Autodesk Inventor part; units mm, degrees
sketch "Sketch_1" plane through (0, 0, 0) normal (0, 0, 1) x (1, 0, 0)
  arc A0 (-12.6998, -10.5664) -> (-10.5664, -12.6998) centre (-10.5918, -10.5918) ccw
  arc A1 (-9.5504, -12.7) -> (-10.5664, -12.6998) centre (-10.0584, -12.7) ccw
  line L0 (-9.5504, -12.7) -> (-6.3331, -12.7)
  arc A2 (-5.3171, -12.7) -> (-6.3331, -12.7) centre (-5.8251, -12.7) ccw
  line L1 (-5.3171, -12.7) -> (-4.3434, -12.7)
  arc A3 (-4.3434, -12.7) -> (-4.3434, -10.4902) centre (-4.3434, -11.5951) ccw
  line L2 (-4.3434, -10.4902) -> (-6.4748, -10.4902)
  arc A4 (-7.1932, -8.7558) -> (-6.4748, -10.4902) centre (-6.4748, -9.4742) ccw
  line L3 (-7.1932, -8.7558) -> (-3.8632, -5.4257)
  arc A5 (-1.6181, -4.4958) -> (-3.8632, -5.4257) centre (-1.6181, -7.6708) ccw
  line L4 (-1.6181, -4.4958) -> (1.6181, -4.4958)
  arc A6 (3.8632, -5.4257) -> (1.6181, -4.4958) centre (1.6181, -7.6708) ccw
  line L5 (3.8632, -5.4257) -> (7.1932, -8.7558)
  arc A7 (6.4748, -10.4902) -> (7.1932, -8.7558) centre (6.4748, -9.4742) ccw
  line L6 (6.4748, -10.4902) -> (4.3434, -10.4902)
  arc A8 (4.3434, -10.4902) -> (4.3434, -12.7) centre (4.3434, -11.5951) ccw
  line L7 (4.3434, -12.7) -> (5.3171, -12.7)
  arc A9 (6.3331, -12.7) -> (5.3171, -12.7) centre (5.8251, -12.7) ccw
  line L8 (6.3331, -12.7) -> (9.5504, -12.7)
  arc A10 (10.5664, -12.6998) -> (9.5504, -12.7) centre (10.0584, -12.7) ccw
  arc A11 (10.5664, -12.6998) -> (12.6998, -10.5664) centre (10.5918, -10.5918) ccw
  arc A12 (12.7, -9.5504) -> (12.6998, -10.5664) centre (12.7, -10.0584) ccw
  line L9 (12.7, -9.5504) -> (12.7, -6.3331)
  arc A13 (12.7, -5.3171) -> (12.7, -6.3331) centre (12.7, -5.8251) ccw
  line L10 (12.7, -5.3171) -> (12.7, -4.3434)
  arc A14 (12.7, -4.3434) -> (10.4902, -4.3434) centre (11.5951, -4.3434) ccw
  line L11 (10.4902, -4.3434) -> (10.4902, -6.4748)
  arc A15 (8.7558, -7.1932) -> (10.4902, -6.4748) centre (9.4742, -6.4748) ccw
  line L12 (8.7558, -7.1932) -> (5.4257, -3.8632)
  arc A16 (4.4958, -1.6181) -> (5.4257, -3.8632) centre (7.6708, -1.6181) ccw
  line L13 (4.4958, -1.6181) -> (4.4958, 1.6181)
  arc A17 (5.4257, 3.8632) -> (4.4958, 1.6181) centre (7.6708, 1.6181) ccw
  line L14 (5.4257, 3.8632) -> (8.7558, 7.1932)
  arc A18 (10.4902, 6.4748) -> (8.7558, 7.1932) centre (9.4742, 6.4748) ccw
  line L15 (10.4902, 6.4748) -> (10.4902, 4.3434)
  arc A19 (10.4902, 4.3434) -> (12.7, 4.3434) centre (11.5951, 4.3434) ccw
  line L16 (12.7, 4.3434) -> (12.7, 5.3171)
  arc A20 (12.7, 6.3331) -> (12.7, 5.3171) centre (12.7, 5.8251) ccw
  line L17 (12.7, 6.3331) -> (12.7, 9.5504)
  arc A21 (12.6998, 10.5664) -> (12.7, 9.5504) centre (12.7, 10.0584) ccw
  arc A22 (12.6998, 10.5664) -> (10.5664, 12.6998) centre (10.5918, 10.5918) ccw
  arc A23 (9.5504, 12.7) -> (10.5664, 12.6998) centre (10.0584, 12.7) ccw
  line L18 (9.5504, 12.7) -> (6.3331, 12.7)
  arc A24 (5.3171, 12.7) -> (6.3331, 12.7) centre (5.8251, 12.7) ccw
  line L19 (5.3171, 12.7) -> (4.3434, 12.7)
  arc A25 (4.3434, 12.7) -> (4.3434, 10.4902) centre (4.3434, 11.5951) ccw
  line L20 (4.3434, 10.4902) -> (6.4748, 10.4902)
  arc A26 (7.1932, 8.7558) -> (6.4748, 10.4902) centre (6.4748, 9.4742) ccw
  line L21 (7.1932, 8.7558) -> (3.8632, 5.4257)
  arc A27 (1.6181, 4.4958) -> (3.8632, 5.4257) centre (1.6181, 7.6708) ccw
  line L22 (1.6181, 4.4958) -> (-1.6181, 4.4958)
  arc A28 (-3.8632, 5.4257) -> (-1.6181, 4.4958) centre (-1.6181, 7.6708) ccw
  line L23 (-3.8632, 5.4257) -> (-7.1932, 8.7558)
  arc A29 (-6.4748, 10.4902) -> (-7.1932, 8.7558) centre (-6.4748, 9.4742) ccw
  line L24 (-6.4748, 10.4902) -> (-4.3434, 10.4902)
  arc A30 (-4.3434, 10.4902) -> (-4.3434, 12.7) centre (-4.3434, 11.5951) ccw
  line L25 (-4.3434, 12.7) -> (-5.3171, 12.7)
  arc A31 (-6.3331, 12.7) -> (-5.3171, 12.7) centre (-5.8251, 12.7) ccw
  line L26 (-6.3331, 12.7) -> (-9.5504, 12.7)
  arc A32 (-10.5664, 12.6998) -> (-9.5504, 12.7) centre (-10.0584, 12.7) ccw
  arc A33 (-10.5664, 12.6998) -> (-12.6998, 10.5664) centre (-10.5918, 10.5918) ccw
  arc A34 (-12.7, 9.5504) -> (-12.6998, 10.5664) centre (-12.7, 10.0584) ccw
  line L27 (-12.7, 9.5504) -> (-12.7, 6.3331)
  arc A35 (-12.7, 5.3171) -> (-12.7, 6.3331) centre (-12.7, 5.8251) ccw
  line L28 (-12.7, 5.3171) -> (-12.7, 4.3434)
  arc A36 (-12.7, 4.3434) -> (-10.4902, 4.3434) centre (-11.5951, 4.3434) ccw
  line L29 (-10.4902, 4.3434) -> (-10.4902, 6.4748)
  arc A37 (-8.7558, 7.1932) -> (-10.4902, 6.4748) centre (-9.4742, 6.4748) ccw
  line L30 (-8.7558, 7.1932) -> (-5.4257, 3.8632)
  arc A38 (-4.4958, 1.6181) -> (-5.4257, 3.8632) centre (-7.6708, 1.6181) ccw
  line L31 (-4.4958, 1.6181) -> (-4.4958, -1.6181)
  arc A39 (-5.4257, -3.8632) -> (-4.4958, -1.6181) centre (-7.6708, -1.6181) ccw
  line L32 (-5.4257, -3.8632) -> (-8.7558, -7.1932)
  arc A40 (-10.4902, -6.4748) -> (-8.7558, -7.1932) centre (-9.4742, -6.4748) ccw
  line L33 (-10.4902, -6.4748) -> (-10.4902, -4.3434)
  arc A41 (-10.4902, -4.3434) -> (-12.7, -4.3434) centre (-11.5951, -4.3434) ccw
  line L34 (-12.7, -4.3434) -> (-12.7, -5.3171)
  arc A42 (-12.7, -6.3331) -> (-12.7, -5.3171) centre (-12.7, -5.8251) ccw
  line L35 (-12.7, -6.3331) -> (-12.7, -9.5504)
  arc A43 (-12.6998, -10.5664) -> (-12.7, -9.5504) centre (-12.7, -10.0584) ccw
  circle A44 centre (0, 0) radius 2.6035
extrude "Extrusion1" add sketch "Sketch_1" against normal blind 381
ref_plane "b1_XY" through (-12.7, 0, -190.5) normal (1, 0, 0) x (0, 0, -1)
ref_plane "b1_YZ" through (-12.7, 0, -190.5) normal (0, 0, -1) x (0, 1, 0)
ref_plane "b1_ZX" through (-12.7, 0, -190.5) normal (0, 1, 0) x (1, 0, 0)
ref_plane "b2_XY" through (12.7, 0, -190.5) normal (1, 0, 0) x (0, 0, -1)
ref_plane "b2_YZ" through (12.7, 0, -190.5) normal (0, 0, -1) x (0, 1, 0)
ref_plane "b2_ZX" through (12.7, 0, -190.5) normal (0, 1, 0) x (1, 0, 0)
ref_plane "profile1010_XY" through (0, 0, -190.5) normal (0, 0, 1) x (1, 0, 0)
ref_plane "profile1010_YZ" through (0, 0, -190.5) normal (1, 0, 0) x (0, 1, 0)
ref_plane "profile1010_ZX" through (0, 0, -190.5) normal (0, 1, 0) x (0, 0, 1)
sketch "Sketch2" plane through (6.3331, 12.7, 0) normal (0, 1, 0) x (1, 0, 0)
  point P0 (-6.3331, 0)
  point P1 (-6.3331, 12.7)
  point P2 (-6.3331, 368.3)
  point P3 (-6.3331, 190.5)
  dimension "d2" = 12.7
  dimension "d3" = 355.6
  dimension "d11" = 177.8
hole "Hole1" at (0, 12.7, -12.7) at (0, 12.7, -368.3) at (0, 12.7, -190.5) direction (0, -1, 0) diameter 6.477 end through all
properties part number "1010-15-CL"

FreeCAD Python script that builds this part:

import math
import FreeCAD as App
import Part
import Sketcher
from FreeCAD import Vector
Q = App.Units.Quantity

doc = App.newDocument("Part")
body = doc.addObject("PartDesign::Body", "Body")

# Sketch on XY plane
sketch1 = body.newObject("Sketcher::SketchObject", "Sketch")
sketch1.AttachmentSupport = (doc.getObject("XY_Plane"), [""])
sketch1.MapMode = "FlatFace"
sketch1.addGeometry([
    Part.ArcOfCircle(Part.Circle(Vector(-12.7, -10.1, 0), Vector(0, 0, 1), 0.5), math.radians(-90), math.radians(90)),  # 0
    Part.ArcOfCircle(Part.Circle(Vector(-10.6, -10.6, 0), Vector(0, 0, 1), 2.1), math.radians(179), math.radians(271)),  # 1
    Part.ArcOfCircle(Part.Circle(Vector(-10.1, -12.7, 0), Vector(0, 0, 1), 0.5), math.radians(0), math.radians(180)),  # 2
    Part.LineSegment(Vector(-9.6, -12.7, 0), Vector(-6.3, -12.7, 0)),  # 3
    Part.ArcOfCircle(Part.Circle(Vector(-5.8, -12.7, 0), Vector(0, 0, 1), 0.5), math.radians(0), math.radians(180)),  # 4
    Part.LineSegment(Vector(-5.3, -12.7, 0), Vector(-4.3, -12.7, 0)),  # 5
    Part.ArcOfCircle(Part.Circle(Vector(-4.3, -11.6, 0), Vector(0, 0, 1), 1.1), math.radians(-90), math.radians(90)),  # 6
    Part.LineSegment(Vector(-4.3, -10.5, 0), Vector(-6.5, -10.5, 0)),  # 7
    Part.ArcOfCircle(Part.Circle(Vector(-6.5, -9.5, 0), Vector(0, 0, 1), 1), math.radians(135), math.radians(270)),  # 8
    Part.LineSegment(Vector(-7.2, -8.8, 0), Vector(-3.9, -5.4, 0)),  # 9
    Part.ArcOfCircle(Part.Circle(Vector(-1.6, -7.7, 0), Vector(0, 0, 1), 3.2), math.radians(90), math.radians(135)),  # 10
    Part.LineSegment(Vector(-1.6, -4.5, 0), Vector(1.6, -4.5, 0)),  # 11
    Part.ArcOfCircle(Part.Circle(Vector(1.6, -7.7, 0), Vector(0, 0, 1), 3.2), math.radians(45), math.radians(90)),  # 12
    Part.LineSegment(Vector(3.9, -5.4, 0), Vector(7.2, -8.8, 0)),  # 13
    Part.ArcOfCircle(Part.Circle(Vector(6.5, -9.5, 0), Vector(0, 0, 1), 1), math.radians(-90), math.radians(45)),  # 14
    Part.LineSegment(Vector(6.5, -10.5, 0), Vector(4.3, -10.5, 0)),  # 15
    Part.ArcOfCircle(Part.Circle(Vector(4.3, -11.6, 0), Vector(0, 0, 1), 1.1), math.radians(90), math.radians(270)),  # 16
    Part.LineSegment(Vector(4.3, -12.7, 0), Vector(5.3, -12.7, 0)),  # 17
    Part.ArcOfCircle(Part.Circle(Vector(5.8, -12.7, 0), Vector(0, 0, 1), 0.5), math.radians(0), math.radians(180)),  # 18
    Part.LineSegment(Vector(6.3, -12.7, 0), Vector(9.6, -12.7, 0)),  # 19
    Part.ArcOfCircle(Part.Circle(Vector(10.1, -12.7, 0), Vector(0, 0, 1), 0.5), math.radians(0), math.radians(180)),  # 20
    Part.ArcOfCircle(Part.Circle(Vector(10.6, -10.6, 0), Vector(0, 0, 1), 2.1), math.radians(-91), math.radians(1)),  # 21
    Part.ArcOfCircle(Part.Circle(Vector(12.7, -10.1, 0), Vector(0, 0, 1), 0.5), math.radians(90), math.radians(270)),  # 22
    Part.LineSegment(Vector(12.7, -9.6, 0), Vector(12.7, -6.3, 0)),  # 23
    Part.ArcOfCircle(Part.Circle(Vector(12.7, -5.8, 0), Vector(0, 0, 1), 0.5), math.radians(90), math.radians(270)),  # 24
    Part.LineSegment(Vector(12.7, -5.3, 0), Vector(12.7, -4.3, 0)),  # 25
    Part.ArcOfCircle(Part.Circle(Vector(11.6, -4.3, 0), Vector(0, 0, 1), 1.1), math.radians(0), math.radians(180)),  # 26
    Part.LineSegment(Vector(10.5, -4.3, 0), Vector(10.5, -6.5, 0)),  # 27
    Part.ArcOfCircle(Part.Circle(Vector(9.5, -6.5, 0), Vector(0, 0, 1), 1), math.radians(-135), math.radians(0)),  # 28
    Part.LineSegment(Vector(8.8, -7.2, 0), Vector(5.4, -3.9, 0)),  # 29
    Part.ArcOfCircle(Part.Circle(Vector(7.7, -1.6, 0), Vector(0, 0, 1), 3.2), math.radians(180), math.radians(225)),  # 30
    Part.LineSegment(Vector(4.5, -1.6, 0), Vector(4.5, 1.6, 0)),  # 31
    Part.ArcOfCircle(Part.Circle(Vector(7.7, 1.6, 0), Vector(0, 0, 1), 3.2), math.radians(135), math.radians(180)),  # 32
    Part.LineSegment(Vector(5.4, 3.9, 0), Vector(8.8, 7.2, 0)),  # 33
    Part.ArcOfCircle(Part.Circle(Vector(9.5, 6.5, 0), Vector(0, 0, 1), 1), math.radians(0), math.radians(135)),  # 34
    Part.LineSegment(Vector(10.5, 6.5, 0), Vector(10.5, 4.3, 0)),  # 35
    Part.ArcOfCircle(Part.Circle(Vector(11.6, 4.3, 0), Vector(0, 0, 1), 1.1), math.radians(180), math.radians(360)),  # 36
    Part.LineSegment(Vector(12.7, 4.3, 0), Vector(12.7, 5.3, 0)),  # 37
    Part.ArcOfCircle(Part.Circle(Vector(12.7, 5.8, 0), Vector(0, 0, 1), 0.5), math.radians(90), math.radians(270)),  # 38
    Part.LineSegment(Vector(12.7, 6.3, 0), Vector(12.7, 9.6, 0)),  # 39
    Part.ArcOfCircle(Part.Circle(Vector(12.7, 10.1, 0), Vector(0, 0, 1), 0.5), math.radians(90), math.radians(270)),  # 40
    Part.ArcOfCircle(Part.Circle(Vector(10.6, 10.6, 0), Vector(0, 0, 1), 2.1), math.radians(-1), math.radians(91)),  # 41
    Part.ArcOfCircle(Part.Circle(Vector(10.1, 12.7, 0), Vector(0, 0, 1), 0.5), math.radians(180), math.radians(360)),  # 42
    Part.LineSegment(Vector(9.6, 12.7, 0), Vector(6.3, 12.7, 0)),  # 43
    Part.ArcOfCircle(Part.Circle(Vector(5.8, 12.7, 0), Vector(0, 0, 1), 0.5), math.radians(180), math.radians(360)),  # 44
    Part.LineSegment(Vector(5.3, 12.7, 0), Vector(4.3, 12.7, 0)),  # 45
    Part.ArcOfCircle(Part.Circle(Vector(4.3, 11.6, 0), Vector(0, 0, 1), 1.1), math.radians(90), math.radians(270)),  # 46
    Part.LineSegment(Vector(4.3, 10.5, 0), Vector(6.5, 10.5, 0)),  # 47
    Part.ArcOfCircle(Part.Circle(Vector(6.5, 9.5, 0), Vector(0, 0, 1), 1), math.radians(-45), math.radians(90)),  # 48
    Part.LineSegment(Vector(7.2, 8.8, 0), Vector(3.9, 5.4, 0)),  # 49
    Part.ArcOfCircle(Part.Circle(Vector(1.6, 7.7, 0), Vector(0, 0, 1), 3.2), math.radians(-90), math.radians(-45)),  # 50
    Part.LineSegment(Vector(1.6, 4.5, 0), Vector(-1.6, 4.5, 0)),  # 51
    Part.ArcOfCircle(Part.Circle(Vector(-1.6, 7.7, 0), Vector(0, 0, 1), 3.2), math.radians(-135), math.radians(-90)),  # 52
    Part.LineSegment(Vector(-3.9, 5.4, 0), Vector(-7.2, 8.8, 0)),  # 53
    Part.ArcOfCircle(Part.Circle(Vector(-6.5, 9.5, 0), Vector(0, 0, 1), 1), math.radians(90), math.radians(225)),  # 54
    Part.LineSegment(Vector(-6.5, 10.5, 0), Vector(-4.3, 10.5, 0)),  # 55
    Part.ArcOfCircle(Part.Circle(Vector(-4.3, 11.6, 0), Vector(0, 0, 1), 1.1), math.radians(-90), math.radians(90)),  # 56
    Part.LineSegment(Vector(-4.3, 12.7, 0), Vector(-5.3, 12.7, 0)),  # 57
    Part.ArcOfCircle(Part.Circle(Vector(-5.8, 12.7, 0), Vector(0, 0, 1), 0.5), math.radians(180), math.radians(360)),  # 58
    Part.LineSegment(Vector(-6.3, 12.7, 0), Vector(-9.6, 12.7, 0)),  # 59
    Part.ArcOfCircle(Part.Circle(Vector(-10.1, 12.7, 0), Vector(0, 0, 1), 0.5), math.radians(-180), math.radians(0)),  # 60
    Part.ArcOfCircle(Part.Circle(Vector(-10.6, 10.6, 0), Vector(0, 0, 1), 2.1), math.radians(89), math.radians(181)),  # 61
    Part.ArcOfCircle(Part.Circle(Vector(-12.7, 10.1, 0), Vector(0, 0, 1), 0.5), math.radians(-90), math.radians(90)),  # 62
    Part.LineSegment(Vector(-12.7, 9.6, 0), Vector(-12.7, 6.3, 0)),  # 63
    Part.ArcOfCircle(Part.Circle(Vector(-12.7, 5.8, 0), Vector(0, 0, 1), 0.5), math.radians(-90), math.radians(90)),  # 64
    Part.LineSegment(Vector(-12.7, 5.3, 0), Vector(-12.7, 4.3, 0)),  # 65
    Part.ArcOfCircle(Part.Circle(Vector(-11.6, 4.3, 0), Vector(0, 0, 1), 1.1), math.radians(180), math.radians(360)),  # 66
    Part.LineSegment(Vector(-10.5, 4.3, 0), Vector(-10.5, 6.5, 0)),  # 67
    Part.ArcOfCircle(Part.Circle(Vector(-9.5, 6.5, 0), Vector(0, 0, 1), 1), math.radians(45), math.radians(180)),  # 68
    Part.LineSegment(Vector(-8.8, 7.2, 0), Vector(-5.4, 3.9, 0)),  # 69
    Part.ArcOfCircle(Part.Circle(Vector(-7.7, 1.6, 0), Vector(0, 0, 1), 3.2), math.radians(0), math.radians(45)),  # 70
    Part.LineSegment(Vector(-4.5, 1.6, 0), Vector(-4.5, -1.6, 0)),  # 71
    Part.ArcOfCircle(Part.Circle(Vector(-7.7, -1.6, 0), Vector(0, 0, 1), 3.2), math.radians(-45), math.radians(0)),  # 72
    Part.LineSegment(Vector(-5.4, -3.9, 0), Vector(-8.8, -7.2, 0)),  # 73
    Part.ArcOfCircle(Part.Circle(Vector(-9.5, -6.5, 0), Vector(0, 0, 1), 1), math.radians(180), math.radians(315)),  # 74
    Part.LineSegment(Vector(-10.5, -6.5, 0), Vector(-10.5, -4.3, 0)),  # 75
    Part.ArcOfCircle(Part.Circle(Vector(-11.6, -4.3, 0), Vector(0, 0, 1), 1.1), math.radians(0), math.radians(180)),  # 76
    Part.LineSegment(Vector(-12.7, -4.3, 0), Vector(-12.7, -5.3, 0)),  # 77
    Part.ArcOfCircle(Part.Circle(Vector(-12.7, -5.8, 0), Vector(0, 0, 1), 0.5), math.radians(-90), math.radians(90)),  # 78
    Part.LineSegment(Vector(-12.7, -6.3, 0), Vector(-12.7, -9.6, 0)),  # 79
    Part.Circle(Vector(0, 0, 0), Vector(0, 0, 1), 2.6),  # 80
], False)
sketch1.addConstraint([
    Sketcher.Constraint("Coincident", 0, 1, 1, 1),
    Sketcher.Constraint("Coincident", 1, 2, 2, 2),
    Sketcher.Constraint("Coincident", 2, 1, 3, 1),
    Sketcher.Constraint("Coincident", 3, 2, 4, 2),
    Sketcher.Constraint("Coincident", 4, 1, 5, 1),
    Sketcher.Constraint("Tangent", 5, 2, 6, 1),
    Sketcher.Constraint("Tangent", 6, 2, 7, 1),
    Sketcher.Constraint("Tangent", 7, 2, 8, 2),
    Sketcher.Constraint("Tangent", 8, 1, 9, 1),
    Sketcher.Constraint("Tangent", 9, 2, 10, 2),
    Sketcher.Constraint("Tangent", 10, 1, 11, 1),
    Sketcher.Constraint("Tangent", 11, 2, 12, 2),
    Sketcher.Constraint("Tangent", 12, 1, 13, 1),
    Sketcher.Constraint("Tangent", 13, 2, 14, 2),
    Sketcher.Constraint("Tangent", 14, 1, 15, 1),
    Sketcher.Constraint("Tangent", 15, 2, 16, 1),
    Sketcher.Constraint("Tangent", 16, 2, 17, 1),
    Sketcher.Constraint("Coincident", 17, 2, 18, 2),
    Sketcher.Constraint("Coincident", 18, 1, 19, 1),
    Sketcher.Constraint("Coincident", 19, 2, 20, 2),
    Sketcher.Constraint("Coincident", 20, 1, 21, 1),
    Sketcher.Constraint("Coincident", 21, 2, 22, 2),
    Sketcher.Constraint("Coincident", 22, 1, 23, 1),
    Sketcher.Constraint("Coincident", 23, 2, 24, 2),
    Sketcher.Constraint("Coincident", 24, 1, 25, 1),
    Sketcher.Constraint("Tangent", 25, 2, 26, 1),
    Sketcher.Constraint("Tangent", 26, 2, 27, 1),
    Sketcher.Constraint("Tangent", 27, 2, 28, 2),
    Sketcher.Constraint("Tangent", 28, 1, 29, 1),
    Sketcher.Constraint("Tangent", 29, 2, 30, 2),
    Sketcher.Constraint("Tangent", 30, 1, 31, 1),
    Sketcher.Constraint("Tangent", 31, 2, 32, 2),
    Sketcher.Constraint("Tangent", 32, 1, 33, 1),
    Sketcher.Constraint("Tangent", 33, 2, 34, 2),
    Sketcher.Constraint("Tangent", 34, 1, 35, 1),
    Sketcher.Constraint("Tangent", 35, 2, 36, 1),
    Sketcher.Constraint("Tangent", 36, 2, 37, 1),
    Sketcher.Constraint("Coincident", 37, 2, 38, 2),
    Sketcher.Constraint("Coincident", 38, 1, 39, 1),
    Sketcher.Constraint("Coincident", 39, 2, 40, 2),
    Sketcher.Constraint("Coincident", 40, 1, 41, 1),
    Sketcher.Constraint("Coincident", 41, 2, 42, 2),
    Sketcher.Constraint("Coincident", 42, 1, 43, 1),
    Sketcher.Constraint("Coincident", 43, 2, 44, 2),
    Sketcher.Constraint("Coincident", 44, 1, 45, 1),
    Sketcher.Constraint("Tangent", 45, 2, 46, 1),
    Sketcher.Constraint("Tangent", 46, 2, 47, 1),
    Sketcher.Constraint("Tangent", 47, 2, 48, 2),
    Sketcher.Constraint("Tangent", 48, 1, 49, 1),
    Sketcher.Constraint("Tangent", 49, 2, 50, 2),
    Sketcher.Constraint("Tangent", 50, 1, 51, 1),
    Sketcher.Constraint("Tangent", 51, 2, 52, 2),
    Sketcher.Constraint("Tangent", 52, 1, 53, 1),
    Sketcher.Constraint("Tangent", 53, 2, 54, 2),
    Sketcher.Constraint("Tangent", 54, 1, 55, 1),
    Sketcher.Constraint("Tangent", 55, 2, 56, 1),
    Sketcher.Constraint("Tangent", 56, 2, 57, 1),
    Sketcher.Constraint("Coincident", 57, 2, 58, 2),
    Sketcher.Constraint("Coincident", 58, 1, 59, 1),
    Sketcher.Constraint("Coincident", 59, 2, 60, 2),
    Sketcher.Constraint("Coincident", 60, 1, 61, 1),
    Sketcher.Constraint("Coincident", 61, 2, 62, 2),
    Sketcher.Constraint("Coincident", 62, 1, 63, 1),
    Sketcher.Constraint("Coincident", 63, 2, 64, 2),
    Sketcher.Constraint("Coincident", 64, 1, 65, 1),
    Sketcher.Constraint("Tangent", 65, 2, 66, 1),
    Sketcher.Constraint("Tangent", 66, 2, 67, 1),
    Sketcher.Constraint("Tangent", 67, 2, 68, 2),
    Sketcher.Constraint("Tangent", 68, 1, 69, 1),
    Sketcher.Constraint("Tangent", 69, 2, 70, 2),
    Sketcher.Constraint("Tangent", 70, 1, 71, 1),
    Sketcher.Constraint("Tangent", 71, 2, 72, 2),
    Sketcher.Constraint("Tangent", 72, 1, 73, 1),
    Sketcher.Constraint("Tangent", 73, 2, 74, 2),
    Sketcher.Constraint("Tangent", 74, 1, 75, 1),
    Sketcher.Constraint("Tangent", 75, 2, 76, 1),
    Sketcher.Constraint("Tangent", 76, 2, 77, 1),
    Sketcher.Constraint("Coincident", 77, 2, 78, 2),
    Sketcher.Constraint("Coincident", 78, 1, 79, 1),
    Sketcher.Constraint("Coincident", 79, 2, 0, 2),
    Sketcher.Constraint("Horizontal", 3),
    Sketcher.Constraint("Horizontal", 5),
    Sketcher.Constraint("Horizontal", 7),
    Sketcher.Constraint("Horizontal", 11),
    Sketcher.Constraint("Horizontal", 15),
    Sketcher.Constraint("Horizontal", 17),
    Sketcher.Constraint("Horizontal", 19),
    Sketcher.Constraint("Vertical", 23),
    Sketcher.Constraint("Vertical", 25),
    Sketcher.Constraint("Vertical", 27),
    Sketcher.Constraint("Vertical", 31),
    Sketcher.Constraint("Vertical", 35),
    Sketcher.Constraint("Vertical", 37),
    Sketcher.Constraint("Vertical", 39),
    Sketcher.Constraint("Horizontal", 43),
    Sketcher.Constraint("Horizontal", 45),
    Sketcher.Constraint("Horizontal", 47),
    Sketcher.Constraint("Horizontal", 51),
    Sketcher.Constraint("Horizontal", 55),
    Sketcher.Constraint("Horizontal", 57),
    Sketcher.Constraint("Horizontal", 59),
    Sketcher.Constraint("Vertical", 63),
    Sketcher.Constraint("Vertical", 65),
    Sketcher.Constraint("Vertical", 67),
    Sketcher.Constraint("Vertical", 71),
    Sketcher.Constraint("Vertical", 75),
    Sketcher.Constraint("Vertical", 77),
    Sketcher.Constraint("Vertical", 79),
    Sketcher.Constraint("Coincident", 80, 3, -1, 1),
    Sketcher.Constraint("Equal", 0, 2),
    Sketcher.Constraint("Equal", 2, 4),
    Sketcher.Constraint("Equal", 10, 12),
    Sketcher.Constraint("Equal", 8, 14),
    Sketcher.Constraint("Equal", 6, 16),
    Sketcher.Constraint("Equal", 4, 18),
    Sketcher.Constraint("Equal", 18, 20),
    Sketcher.Constraint("Equal", 1, 21),
    Sketcher.Constraint("Equal", 20, 22),
    Sketcher.Constraint("Equal", 22, 24),
    Sketcher.Constraint("Equal", 16, 26),
    Sketcher.Constraint("Equal", 14, 28),
    Sketcher.Constraint("Equal", 12, 30),
    Sketcher.Constraint("Equal", 30, 32),
    Sketcher.Constraint("Equal", 28, 34),
    Sketcher.Constraint("Equal", 26, 36),
    Sketcher.Constraint("Equal", 24, 38),
    Sketcher.Constraint("Equal", 38, 40),
    Sketcher.Constraint("Equal", 21, 41),
    Sketcher.Constraint("Equal", 40, 42),
    Sketcher.Constraint("Equal", 42, 44),
    Sketcher.Constraint("Equal", 36, 46),
    Sketcher.Constraint("Equal", 34, 48),
    Sketcher.Constraint("Equal", 32, 50),
    Sketcher.Constraint("Equal", 50, 52),
    Sketcher.Constraint("Equal", 48, 54),
    Sketcher.Constraint("Equal", 46, 56),
    Sketcher.Constraint("Equal", 44, 58),
    Sketcher.Constraint("Equal", 58, 60),
    Sketcher.Constraint("Equal", 41, 61),
    Sketcher.Constraint("Equal", 60, 62),
    Sketcher.Constraint("Equal", 62, 64),
    Sketcher.Constraint("Equal", 56, 66),
    Sketcher.Constraint("Equal", 54, 68),
    Sketcher.Constraint("Equal", 52, 70),
    Sketcher.Constraint("Equal", 70, 72),
    Sketcher.Constraint("Equal", 68, 74),
    Sketcher.Constraint("Equal", 66, 76),
    Sketcher.Constraint("Equal", 64, 78),
    Sketcher.Constraint("Symmetric", 0, 3, 40, 3, -1, 1),
    Sketcher.Constraint("Symmetric", 1, 3, 41, 3, -1, 1),
    Sketcher.Constraint("Symmetric", 2, 3, 42, 3, -1, 1),
    Sketcher.Constraint("Symmetric", 4, 3, 44, 3, -1, 1),
    Sketcher.Constraint("Symmetric", 6, 3, 46, 3, -1, 1),
    Sketcher.Constraint("Symmetric", 10, 3, 50, 3, -1, 1),
    Sketcher.Constraint("Symmetric", 14, 3, 54, 3, -1, 1),
    Sketcher.Constraint("Symmetric", 18, 3, 58, 3, -1, 1),
    Sketcher.Constraint("Symmetric", 20, 3, 60, 3, -1, 1),
    Sketcher.Constraint("Symmetric", 21, 3, 61, 3, -1, 1),
    Sketcher.Constraint("Symmetric", 22, 3, 62, 3, -1, 1),
    Sketcher.Constraint("Symmetric", 24, 3, 64, 3, -1, 1),
    Sketcher.Constraint("Symmetric", 26, 3, 66, 3, -1, 1),
    Sketcher.Constraint("Symmetric", 30, 3, 70, 3, -1, 1),
    Sketcher.Constraint("Symmetric", 34, 3, 74, 3, -1, 1),
    Sketcher.Constraint("Symmetric", 38, 3, 78, 3, -1, 1),
    Sketcher.Constraint("Symmetric", 8, 3, 14, 3, -2),
    Sketcher.Constraint("Symmetric", 4, 3, 18, 3, -2),
    Sketcher.Constraint("Symmetric", 2, 3, 20, 3, -2),
    Sketcher.Constraint("Symmetric", 1, 3, 21, 3, -2),
    Sketcher.Constraint("Symmetric", 0, 3, 22, 3, -2),
    Sketcher.Constraint("Symmetric", 38, 3, 64, 3, -2),
    Sketcher.Constraint("Symmetric", 36, 3, 66, 3, -2),
    Sketcher.Constraint("Symmetric", 49, 2, 52, 1, -2),
    Sketcher.Constraint("Symmetric", 33, 2, 68, 1, -2),
    Sketcher.Constraint("Symmetric", 29, 2, 72, 1, -2),
    Sketcher.Constraint("Perpendicular", 9, 13),
    Sketcher.Constraint("Parallel", 13, 29),
    Sketcher.Constraint("Perpendicular", 29, 33),
    Sketcher.Constraint("Horizontal", 2, 3, 4, 3),
    Sketcher.Constraint("Horizontal", 26, 3, 76, 3),
    Sketcher.Constraint("Horizontal", 20, 3, 1, 2),
    Sketcher.Constraint("Horizontal", 1, 2, 2, 1),
    Sketcher.Constraint("Horizontal", 3, 2, 4, 1),
    Sketcher.Constraint("Horizontal", 17, 2, 18, 1),
    Sketcher.Constraint("Horizontal", 41, 2, 42, 1),
    Sketcher.Constraint("Horizontal", 57, 2, 58, 1),
    Sketcher.Constraint("Vertical", 22, 3, 24, 3),
    Sketcher.Constraint("Vertical", 16, 3, 46, 3),
    Sketcher.Constraint("Vertical", 6, 3, 56, 3),
    Sketcher.Constraint("Vertical", 78, 3, 0, 1),
    Sketcher.Constraint("Vertical", 21, 2, 22, 1),
    Sketcher.Constraint("Vertical", 23, 2, 24, 1),
    Sketcher.Constraint("Vertical", 37, 2, 38, 1),
    Sketcher.Constraint("Vertical", 61, 2, 62, 1),
    Sketcher.Constraint("Vertical", 77, 2, 78, 1),
    Sketcher.Constraint("Equal", 59, 23),
    Sketcher.Constraint("Equal", 57, 25),
    Sketcher.Constraint("Equal", 55, 27),
    Sketcher.Constraint("Equal", 51, 31),
    Sketcher.Constraint("Equal", 13, 29),
    Sketcher.Constraint("Radius", 0, Q("0.02 in")),
    Sketcher.Constraint("Radius", 8, Q("0.04 in")),
    Sketcher.Constraint("Diameter", 80, Q("0.205 in")),
    Sketcher.Constraint("Radius", 1, Q("0.083 in")),
    Sketcher.Constraint("Radius", 10, Q("0.125 in")),
    Sketcher.Constraint("DistanceX", 0, 3, -1, 1, Q("0.5 in")),
    Sketcher.Constraint("DistanceY", 2, 3, -1, 1, Q("0.5 in")),
    Sketcher.Constraint("Radius", 6, Q("0.0435 in")),
    Sketcher.Constraint("DistanceX", 11, 1, 11, 2, Q("0.1274 in")),
    Sketcher.Constraint("DistanceY", 0, 3, -1, 1, Q("0.396 in")),
    Sketcher.Constraint("DistanceX", 6, 3, -1, 1, Q("0.171 in")),
    Sketcher.Constraint("DistanceY", 10, 3, -1, 1, Q("0.302 in")),
    Sketcher.Constraint("DistanceX", 3, 1, 3, 2, Q("3.2173 mm")),
])
pad1 = body.newObject("PartDesign::Pad", "Pad")
pad1.Profile = sketch1
pad1.Length = Q("15 in")
pad1.Reversed = True

# Sketch on XZ plane
sketch2 = body.newObject("Sketcher::SketchObject", "Sketch001")
sketch2.AttachmentSupport = (doc.getObject("XZ_Plane"), [""])
sketch2.MapMode = "FlatFace"
sketch2.AttachmentOffset = App.Placement(Vector(0, 0, -0.5 * 25.4), App.Rotation())
sketch2.addGeometry([
    Part.Circle(Vector(0, -12.7, 0), Vector(0, 0, 1), 3.2),
    Part.Circle(Vector(0, -368.3, 0), Vector(0, 0, 1), 3.2),
    Part.Circle(Vector(0, -190.5, 0), Vector(0, 0, 1), 3.2),
], False)
sketch2.addConstraint([
    Sketcher.Constraint("Equal", 0, 1),
    Sketcher.Constraint("Equal", 1, 2),
    Sketcher.Constraint("PointOnObject", 0, 3, -2),
    Sketcher.Constraint("PointOnObject", 1, 3, -2),
    Sketcher.Constraint("PointOnObject", 2, 3, -2),
    Sketcher.Constraint("Diameter", 0, Q("0.255 in")),
    Sketcher.Constraint("DistanceY", 1, 3, 0, 3, Q("14 in")),
    Sketcher.Constraint("DistanceY", 2, 3, 0, 3, Q("7 in")),
    Sketcher.Constraint("DistanceY", 0, 3, -1, 1, Q("0.5 in")),
])
doc.recompute()
hole = body.newObject("PartDesign::Hole", "Hole")
hole.Profile = sketch2
hole.ThreadType = "None"
hole.Diameter = Q("0.255 in")
hole.DepthType = "ThroughAll"
hole.Reversed = True

doc.recompute()
